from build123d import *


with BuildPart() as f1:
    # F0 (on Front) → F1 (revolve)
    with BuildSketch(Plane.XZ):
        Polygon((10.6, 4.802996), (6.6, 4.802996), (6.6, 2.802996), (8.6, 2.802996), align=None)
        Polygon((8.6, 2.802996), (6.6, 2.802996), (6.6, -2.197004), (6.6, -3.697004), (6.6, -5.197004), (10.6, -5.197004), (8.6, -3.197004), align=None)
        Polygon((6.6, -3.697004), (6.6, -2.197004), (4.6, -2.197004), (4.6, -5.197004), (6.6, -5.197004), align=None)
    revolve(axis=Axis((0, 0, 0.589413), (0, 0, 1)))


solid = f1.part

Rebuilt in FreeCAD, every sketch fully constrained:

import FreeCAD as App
import Part
import Sketcher


def add_polygon(sketch, points):
    """Adds a closed chain of lines whose ends are joined by coincident constraints."""
    first, n = sketch.GeometryCount, len(points)
    for a, b in zip(points, points[1:] + points[:1]):
        sketch.addGeometry(Part.LineSegment(App.Vector(*a, 0), App.Vector(*b, 0)), False)
    for i in range(n):
        sketch.addConstraint(Sketcher.Constraint("Coincident", first + i, 2, first + (i + 1) % n, 1))

doc = App.newDocument("Part")
body = doc.addObject("PartDesign::Body", "Body")

# Sketch on XZ plane
sketch1 = body.newObject("Sketcher::SketchObject", "Sketch")
sketch1.AttachmentSupport = (doc.getObject("XZ_Plane"), [""])
sketch1.MapMode = "FlatFace"
add_polygon(sketch1, [(10.6, 4.802996), (6.6, 4.802996), (6.6, -2.197004), (4.6, -2.197004), (4.6, -5.197004), (10.6, -5.197004), (8.6, -3.197004), (8.6, 2.802996)])  # lines 0-7
sketch1.addConstraint(Sketcher.Constraint("Horizontal", 0))
sketch1.addConstraint(Sketcher.Constraint("Vertical", 1))
sketch1.addConstraint(Sketcher.Constraint("Horizontal", 2))
sketch1.addConstraint(Sketcher.Constraint("Vertical", 3))
sketch1.addConstraint(Sketcher.Constraint("Horizontal", 4))
sketch1.addConstraint(Sketcher.Constraint("Vertical", 6))
sketch1.addConstraint(Sketcher.Constraint("Perpendicular", 5, 7))
sketch1.addConstraint(Sketcher.Constraint("Vertical", 4, 2, 7, 2))
sketch1.addConstraint(Sketcher.Constraint("Equal", 4, 6))
sketch1.addConstraint(Sketcher.Constraint("Equal", 5, 7))
sketch1.addConstraint(Sketcher.Constraint("DistanceX", 0, 2, 0, 1, 4.0))
sketch1.addConstraint(Sketcher.Constraint("DistanceX", 2, 2, 2, 1, 2.0))
sketch1.addConstraint(Sketcher.Constraint("DistanceY", 1, 2, 1, 1, 7.0))
sketch1.addConstraint(Sketcher.Constraint("DistanceY", 3, 2, 3, 1, 3.0))
sketch1.addConstraint(Sketcher.Constraint("DistanceX", -1, 1, 0, 2, 6.6))
sketch1.addConstraint(Sketcher.Constraint("DistanceY", -1, 1, 0, 2, 4.802996))
revolution = body.newObject("PartDesign::Revolution", "Revolution")
revolution.Profile = sketch1
revolution.ReferenceAxis = (sketch1, ["V_Axis"])
revolution.Angle = 360

doc.recompute()
